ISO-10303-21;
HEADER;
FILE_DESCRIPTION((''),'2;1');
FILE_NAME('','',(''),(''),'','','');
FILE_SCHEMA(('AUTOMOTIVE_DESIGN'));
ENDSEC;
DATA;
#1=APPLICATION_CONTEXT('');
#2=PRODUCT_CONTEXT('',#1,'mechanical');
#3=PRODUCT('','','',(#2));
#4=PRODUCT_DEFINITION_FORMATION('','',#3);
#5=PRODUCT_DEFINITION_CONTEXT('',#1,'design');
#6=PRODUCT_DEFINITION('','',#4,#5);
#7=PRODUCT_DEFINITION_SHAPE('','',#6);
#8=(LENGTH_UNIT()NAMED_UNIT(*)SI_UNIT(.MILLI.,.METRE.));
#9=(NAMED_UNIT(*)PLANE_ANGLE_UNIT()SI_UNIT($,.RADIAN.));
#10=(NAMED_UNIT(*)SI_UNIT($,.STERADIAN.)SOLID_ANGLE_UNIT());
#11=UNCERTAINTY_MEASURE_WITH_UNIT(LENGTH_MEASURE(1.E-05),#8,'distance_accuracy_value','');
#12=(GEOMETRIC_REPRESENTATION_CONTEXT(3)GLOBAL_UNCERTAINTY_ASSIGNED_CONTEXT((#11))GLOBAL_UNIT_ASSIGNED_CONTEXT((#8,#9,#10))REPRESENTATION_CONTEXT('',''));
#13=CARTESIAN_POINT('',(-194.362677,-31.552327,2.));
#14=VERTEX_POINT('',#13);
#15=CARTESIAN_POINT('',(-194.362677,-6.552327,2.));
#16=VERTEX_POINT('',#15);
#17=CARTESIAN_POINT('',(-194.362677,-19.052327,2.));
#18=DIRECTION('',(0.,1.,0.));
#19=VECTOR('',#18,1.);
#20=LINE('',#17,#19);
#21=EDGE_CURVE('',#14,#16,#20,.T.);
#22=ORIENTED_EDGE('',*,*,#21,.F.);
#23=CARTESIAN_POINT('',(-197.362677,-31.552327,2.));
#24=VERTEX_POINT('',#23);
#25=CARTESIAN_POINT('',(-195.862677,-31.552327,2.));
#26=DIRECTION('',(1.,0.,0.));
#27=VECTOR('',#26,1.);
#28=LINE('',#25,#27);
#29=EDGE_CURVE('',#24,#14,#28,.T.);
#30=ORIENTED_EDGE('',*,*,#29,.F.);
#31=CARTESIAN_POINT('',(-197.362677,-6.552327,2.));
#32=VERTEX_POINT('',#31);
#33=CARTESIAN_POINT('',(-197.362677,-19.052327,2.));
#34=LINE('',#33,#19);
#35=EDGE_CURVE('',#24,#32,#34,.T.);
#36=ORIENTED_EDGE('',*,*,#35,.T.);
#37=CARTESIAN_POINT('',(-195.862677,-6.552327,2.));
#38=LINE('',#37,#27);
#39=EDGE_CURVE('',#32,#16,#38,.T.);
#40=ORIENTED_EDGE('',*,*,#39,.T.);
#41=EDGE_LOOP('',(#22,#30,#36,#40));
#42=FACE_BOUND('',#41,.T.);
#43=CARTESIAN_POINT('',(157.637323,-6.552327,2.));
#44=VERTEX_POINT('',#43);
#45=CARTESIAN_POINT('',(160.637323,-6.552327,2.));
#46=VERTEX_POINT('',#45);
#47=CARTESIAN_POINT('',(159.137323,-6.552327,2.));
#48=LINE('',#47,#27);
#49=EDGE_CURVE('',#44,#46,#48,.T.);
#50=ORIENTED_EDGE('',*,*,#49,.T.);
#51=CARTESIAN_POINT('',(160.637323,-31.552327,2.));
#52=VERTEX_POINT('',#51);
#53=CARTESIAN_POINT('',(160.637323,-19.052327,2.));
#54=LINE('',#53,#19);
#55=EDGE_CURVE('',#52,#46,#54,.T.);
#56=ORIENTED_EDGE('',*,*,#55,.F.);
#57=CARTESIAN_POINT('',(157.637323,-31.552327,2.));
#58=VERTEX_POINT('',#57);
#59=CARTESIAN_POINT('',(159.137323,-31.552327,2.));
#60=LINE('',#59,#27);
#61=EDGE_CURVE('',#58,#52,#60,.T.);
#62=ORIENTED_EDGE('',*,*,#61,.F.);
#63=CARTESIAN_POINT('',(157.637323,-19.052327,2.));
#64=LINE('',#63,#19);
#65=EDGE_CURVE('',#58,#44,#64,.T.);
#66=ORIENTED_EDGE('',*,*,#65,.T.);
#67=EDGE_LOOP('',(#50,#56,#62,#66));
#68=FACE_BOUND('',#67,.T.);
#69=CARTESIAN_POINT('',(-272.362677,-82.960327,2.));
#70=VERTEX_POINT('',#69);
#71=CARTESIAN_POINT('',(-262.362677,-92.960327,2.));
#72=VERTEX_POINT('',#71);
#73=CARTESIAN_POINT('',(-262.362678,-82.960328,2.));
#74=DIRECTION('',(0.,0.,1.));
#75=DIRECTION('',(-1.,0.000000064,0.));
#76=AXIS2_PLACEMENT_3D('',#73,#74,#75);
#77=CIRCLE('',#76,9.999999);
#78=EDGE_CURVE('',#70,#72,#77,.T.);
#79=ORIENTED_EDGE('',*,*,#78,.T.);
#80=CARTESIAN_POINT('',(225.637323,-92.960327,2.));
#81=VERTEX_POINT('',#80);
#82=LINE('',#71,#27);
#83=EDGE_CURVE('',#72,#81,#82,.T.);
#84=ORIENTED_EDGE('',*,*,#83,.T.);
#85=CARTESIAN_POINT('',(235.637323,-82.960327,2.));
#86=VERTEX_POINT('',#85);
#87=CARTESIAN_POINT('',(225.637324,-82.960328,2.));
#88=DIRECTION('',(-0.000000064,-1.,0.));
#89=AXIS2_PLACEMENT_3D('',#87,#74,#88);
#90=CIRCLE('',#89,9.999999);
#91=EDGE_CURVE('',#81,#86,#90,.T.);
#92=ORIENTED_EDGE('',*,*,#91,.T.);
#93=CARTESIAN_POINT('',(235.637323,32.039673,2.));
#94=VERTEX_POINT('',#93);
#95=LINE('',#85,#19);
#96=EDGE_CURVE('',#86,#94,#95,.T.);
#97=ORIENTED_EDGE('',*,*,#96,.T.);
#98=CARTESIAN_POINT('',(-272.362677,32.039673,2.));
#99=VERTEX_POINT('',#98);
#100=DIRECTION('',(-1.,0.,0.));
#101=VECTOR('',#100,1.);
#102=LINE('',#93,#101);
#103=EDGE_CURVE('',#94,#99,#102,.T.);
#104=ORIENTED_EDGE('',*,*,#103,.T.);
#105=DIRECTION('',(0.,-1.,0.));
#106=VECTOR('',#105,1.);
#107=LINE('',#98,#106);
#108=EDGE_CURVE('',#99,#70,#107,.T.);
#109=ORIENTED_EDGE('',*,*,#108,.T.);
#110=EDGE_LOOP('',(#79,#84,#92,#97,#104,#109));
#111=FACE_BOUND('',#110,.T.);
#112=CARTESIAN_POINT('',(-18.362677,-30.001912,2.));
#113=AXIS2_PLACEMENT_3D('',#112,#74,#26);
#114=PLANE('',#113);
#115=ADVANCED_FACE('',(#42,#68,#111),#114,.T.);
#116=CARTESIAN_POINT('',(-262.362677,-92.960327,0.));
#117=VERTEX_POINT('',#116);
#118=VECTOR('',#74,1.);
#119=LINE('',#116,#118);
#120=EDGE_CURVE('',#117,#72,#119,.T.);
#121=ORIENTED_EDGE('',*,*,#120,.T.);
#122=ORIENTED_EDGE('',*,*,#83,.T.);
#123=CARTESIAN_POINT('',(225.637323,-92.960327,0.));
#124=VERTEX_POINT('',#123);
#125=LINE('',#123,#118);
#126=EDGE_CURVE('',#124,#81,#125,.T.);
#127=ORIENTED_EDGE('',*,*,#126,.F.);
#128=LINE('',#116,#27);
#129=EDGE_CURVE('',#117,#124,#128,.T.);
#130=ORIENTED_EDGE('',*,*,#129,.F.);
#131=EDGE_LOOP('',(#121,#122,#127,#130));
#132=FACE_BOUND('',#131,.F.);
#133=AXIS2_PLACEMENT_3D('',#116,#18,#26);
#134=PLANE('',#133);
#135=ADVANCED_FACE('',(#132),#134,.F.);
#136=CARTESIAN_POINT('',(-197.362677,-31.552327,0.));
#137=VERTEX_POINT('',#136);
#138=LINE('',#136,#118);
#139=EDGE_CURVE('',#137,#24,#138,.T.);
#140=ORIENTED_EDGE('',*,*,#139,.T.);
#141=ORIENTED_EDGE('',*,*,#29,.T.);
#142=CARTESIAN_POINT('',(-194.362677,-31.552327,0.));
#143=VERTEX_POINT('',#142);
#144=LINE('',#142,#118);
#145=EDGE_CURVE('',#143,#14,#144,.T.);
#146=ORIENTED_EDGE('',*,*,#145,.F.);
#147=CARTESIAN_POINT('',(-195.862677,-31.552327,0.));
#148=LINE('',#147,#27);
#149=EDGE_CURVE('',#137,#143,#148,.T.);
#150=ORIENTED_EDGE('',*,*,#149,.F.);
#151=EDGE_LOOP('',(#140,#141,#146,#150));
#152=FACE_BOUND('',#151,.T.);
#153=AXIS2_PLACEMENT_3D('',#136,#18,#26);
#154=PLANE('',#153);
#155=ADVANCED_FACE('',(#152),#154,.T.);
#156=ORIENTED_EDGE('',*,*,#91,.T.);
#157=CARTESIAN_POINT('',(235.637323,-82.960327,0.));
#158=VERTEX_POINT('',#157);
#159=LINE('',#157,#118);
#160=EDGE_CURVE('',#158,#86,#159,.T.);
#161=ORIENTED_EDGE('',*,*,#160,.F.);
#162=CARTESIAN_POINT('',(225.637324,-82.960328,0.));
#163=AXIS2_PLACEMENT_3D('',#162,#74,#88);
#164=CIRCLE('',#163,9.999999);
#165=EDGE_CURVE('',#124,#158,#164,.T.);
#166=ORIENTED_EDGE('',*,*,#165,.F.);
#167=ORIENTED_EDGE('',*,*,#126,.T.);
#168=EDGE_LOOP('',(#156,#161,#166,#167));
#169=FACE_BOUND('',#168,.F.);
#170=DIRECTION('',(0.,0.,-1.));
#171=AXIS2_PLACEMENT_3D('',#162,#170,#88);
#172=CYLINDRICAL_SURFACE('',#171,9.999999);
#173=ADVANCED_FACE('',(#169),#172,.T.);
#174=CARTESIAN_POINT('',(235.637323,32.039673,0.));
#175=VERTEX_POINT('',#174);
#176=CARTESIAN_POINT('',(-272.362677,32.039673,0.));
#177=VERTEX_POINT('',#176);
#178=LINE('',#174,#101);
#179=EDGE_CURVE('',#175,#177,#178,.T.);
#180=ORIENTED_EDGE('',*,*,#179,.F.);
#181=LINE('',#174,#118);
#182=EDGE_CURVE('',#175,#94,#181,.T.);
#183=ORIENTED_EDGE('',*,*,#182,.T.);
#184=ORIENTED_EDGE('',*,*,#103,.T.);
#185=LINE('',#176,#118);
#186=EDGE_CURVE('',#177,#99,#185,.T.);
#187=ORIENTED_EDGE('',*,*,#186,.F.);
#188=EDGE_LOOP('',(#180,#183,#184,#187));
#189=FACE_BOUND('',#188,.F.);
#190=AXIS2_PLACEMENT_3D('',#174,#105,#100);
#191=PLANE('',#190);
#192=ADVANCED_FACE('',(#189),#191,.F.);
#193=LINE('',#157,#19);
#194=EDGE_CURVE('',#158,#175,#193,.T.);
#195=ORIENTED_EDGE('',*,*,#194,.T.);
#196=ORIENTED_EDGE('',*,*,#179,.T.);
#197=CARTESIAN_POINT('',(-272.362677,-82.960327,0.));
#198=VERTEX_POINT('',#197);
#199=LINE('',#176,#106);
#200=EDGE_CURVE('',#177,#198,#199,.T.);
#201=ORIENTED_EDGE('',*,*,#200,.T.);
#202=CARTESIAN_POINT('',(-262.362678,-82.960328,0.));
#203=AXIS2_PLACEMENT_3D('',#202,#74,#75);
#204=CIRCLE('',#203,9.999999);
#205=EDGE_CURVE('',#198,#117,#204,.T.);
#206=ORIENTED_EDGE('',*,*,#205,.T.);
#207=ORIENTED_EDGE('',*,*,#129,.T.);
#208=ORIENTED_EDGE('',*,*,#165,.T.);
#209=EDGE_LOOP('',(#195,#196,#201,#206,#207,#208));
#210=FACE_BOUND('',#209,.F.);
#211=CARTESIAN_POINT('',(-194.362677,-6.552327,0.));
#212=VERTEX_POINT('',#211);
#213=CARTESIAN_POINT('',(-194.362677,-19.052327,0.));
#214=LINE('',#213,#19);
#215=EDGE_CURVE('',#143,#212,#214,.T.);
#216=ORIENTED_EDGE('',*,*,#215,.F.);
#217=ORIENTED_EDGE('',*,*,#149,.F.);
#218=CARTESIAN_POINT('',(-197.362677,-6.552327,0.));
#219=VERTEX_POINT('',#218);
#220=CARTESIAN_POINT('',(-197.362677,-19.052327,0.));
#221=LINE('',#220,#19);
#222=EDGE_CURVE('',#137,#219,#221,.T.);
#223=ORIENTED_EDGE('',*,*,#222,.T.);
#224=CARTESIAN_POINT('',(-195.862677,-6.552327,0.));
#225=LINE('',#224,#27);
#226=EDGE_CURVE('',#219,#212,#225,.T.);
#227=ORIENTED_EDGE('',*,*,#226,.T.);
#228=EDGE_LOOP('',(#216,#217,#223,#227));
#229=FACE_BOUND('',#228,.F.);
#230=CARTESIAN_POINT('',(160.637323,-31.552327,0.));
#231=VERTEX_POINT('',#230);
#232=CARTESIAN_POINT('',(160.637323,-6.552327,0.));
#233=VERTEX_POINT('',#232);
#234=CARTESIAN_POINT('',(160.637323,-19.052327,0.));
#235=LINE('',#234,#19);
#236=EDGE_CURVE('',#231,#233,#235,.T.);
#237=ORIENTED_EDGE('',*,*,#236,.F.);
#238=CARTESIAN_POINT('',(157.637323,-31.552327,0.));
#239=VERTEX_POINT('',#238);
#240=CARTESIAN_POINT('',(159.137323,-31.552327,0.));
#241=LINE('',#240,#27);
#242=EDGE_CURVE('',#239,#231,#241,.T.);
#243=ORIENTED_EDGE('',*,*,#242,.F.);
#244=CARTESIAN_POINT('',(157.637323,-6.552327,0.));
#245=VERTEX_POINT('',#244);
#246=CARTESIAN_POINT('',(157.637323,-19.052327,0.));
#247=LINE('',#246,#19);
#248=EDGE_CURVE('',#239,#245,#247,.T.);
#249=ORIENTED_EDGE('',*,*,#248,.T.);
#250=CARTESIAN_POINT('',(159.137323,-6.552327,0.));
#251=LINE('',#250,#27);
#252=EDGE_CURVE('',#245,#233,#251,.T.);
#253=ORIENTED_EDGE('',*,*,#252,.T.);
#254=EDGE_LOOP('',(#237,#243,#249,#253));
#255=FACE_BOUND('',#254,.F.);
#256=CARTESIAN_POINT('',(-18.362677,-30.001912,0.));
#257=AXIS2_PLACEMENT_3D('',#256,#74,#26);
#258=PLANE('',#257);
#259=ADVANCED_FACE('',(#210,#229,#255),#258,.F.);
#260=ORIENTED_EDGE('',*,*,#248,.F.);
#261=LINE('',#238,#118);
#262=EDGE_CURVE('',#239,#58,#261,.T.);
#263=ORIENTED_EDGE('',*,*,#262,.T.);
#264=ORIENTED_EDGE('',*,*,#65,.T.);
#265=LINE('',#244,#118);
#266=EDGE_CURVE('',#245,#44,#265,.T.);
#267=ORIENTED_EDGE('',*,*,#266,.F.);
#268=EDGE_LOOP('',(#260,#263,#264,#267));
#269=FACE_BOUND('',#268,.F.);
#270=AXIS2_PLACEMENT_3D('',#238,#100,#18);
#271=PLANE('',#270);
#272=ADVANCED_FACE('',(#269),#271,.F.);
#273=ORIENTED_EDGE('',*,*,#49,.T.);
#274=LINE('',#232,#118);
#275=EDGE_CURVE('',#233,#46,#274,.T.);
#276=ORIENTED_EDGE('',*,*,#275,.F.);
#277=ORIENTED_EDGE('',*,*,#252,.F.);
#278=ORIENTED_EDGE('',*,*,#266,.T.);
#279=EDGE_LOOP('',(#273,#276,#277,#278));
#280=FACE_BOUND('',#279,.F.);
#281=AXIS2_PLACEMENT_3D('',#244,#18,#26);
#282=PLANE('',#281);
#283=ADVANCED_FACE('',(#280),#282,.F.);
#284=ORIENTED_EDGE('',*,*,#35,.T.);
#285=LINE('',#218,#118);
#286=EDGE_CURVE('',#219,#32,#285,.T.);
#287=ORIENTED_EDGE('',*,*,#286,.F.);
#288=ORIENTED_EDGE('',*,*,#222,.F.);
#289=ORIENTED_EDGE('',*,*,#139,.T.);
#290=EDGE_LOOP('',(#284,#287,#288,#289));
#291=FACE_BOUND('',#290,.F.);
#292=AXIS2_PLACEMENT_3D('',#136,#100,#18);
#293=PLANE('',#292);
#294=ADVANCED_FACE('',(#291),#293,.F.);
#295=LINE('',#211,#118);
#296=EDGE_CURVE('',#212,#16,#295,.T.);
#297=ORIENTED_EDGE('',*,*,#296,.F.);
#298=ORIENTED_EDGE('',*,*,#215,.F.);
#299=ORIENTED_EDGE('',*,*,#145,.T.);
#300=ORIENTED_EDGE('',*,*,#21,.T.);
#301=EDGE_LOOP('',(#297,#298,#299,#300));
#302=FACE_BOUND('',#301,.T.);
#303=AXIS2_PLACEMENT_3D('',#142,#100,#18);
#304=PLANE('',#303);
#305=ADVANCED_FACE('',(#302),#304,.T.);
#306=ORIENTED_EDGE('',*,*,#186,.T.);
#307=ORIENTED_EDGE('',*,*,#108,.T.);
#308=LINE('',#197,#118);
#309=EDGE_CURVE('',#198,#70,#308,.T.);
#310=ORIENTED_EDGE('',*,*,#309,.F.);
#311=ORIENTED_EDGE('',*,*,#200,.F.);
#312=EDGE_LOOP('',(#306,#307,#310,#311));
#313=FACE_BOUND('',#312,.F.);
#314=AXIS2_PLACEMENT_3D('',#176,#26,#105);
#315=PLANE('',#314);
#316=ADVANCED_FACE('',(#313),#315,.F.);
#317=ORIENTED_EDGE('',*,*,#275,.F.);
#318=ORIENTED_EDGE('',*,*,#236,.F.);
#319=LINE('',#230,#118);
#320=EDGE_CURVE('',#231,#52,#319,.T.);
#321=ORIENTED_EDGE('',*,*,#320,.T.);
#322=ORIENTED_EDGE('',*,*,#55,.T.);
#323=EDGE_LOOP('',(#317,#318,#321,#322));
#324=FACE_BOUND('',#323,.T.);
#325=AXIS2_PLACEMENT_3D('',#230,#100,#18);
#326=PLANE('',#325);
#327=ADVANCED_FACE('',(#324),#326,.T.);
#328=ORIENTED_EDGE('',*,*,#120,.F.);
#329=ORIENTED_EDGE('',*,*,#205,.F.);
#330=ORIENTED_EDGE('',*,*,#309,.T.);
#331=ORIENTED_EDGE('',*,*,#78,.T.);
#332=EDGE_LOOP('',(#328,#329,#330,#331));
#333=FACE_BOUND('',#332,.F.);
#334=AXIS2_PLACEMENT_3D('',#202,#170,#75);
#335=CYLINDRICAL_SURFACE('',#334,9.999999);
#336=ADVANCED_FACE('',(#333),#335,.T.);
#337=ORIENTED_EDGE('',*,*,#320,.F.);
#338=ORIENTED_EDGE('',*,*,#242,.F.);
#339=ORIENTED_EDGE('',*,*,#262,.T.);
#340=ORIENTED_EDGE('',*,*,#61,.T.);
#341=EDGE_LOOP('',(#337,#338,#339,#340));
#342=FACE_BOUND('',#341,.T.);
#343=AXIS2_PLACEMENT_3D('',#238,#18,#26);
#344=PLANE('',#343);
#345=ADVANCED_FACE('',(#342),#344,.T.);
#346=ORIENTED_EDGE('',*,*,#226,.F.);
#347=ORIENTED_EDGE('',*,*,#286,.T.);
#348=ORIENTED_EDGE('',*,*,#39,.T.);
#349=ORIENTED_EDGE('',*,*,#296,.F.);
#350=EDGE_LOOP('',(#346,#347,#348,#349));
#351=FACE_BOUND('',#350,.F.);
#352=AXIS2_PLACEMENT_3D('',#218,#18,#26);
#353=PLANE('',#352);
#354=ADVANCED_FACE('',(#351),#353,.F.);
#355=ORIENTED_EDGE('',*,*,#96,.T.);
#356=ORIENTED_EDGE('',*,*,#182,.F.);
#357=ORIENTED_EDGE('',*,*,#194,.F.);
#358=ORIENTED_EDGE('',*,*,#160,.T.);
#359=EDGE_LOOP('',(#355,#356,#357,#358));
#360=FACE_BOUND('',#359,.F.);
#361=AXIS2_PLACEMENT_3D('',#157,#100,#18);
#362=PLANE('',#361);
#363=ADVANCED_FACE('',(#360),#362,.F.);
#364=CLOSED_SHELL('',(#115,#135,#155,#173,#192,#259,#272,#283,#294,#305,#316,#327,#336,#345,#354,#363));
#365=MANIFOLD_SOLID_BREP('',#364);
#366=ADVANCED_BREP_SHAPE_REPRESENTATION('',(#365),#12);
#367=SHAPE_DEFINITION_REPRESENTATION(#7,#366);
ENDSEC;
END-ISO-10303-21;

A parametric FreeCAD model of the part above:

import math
import FreeCAD as App
import Part
import Sketcher


def add_polygon(sketch, points):
    """Adds a closed chain of lines whose ends are joined by coincident constraints."""
    first, n = sketch.GeometryCount, len(points)
    for a, b in zip(points, points[1:] + points[:1]):
        sketch.addGeometry(Part.LineSegment(App.Vector(*a, 0), App.Vector(*b, 0)), False)
    for i in range(n):
        sketch.addConstraint(Sketcher.Constraint("Coincident", first + i, 2, first + (i + 1) % n, 1))

doc = App.newDocument("Part")
params = doc.addObject("Spreadsheet::Sheet", "Params")
for row, (alias, value) in enumerate([
    ("sketch1_radius", "9.999999 mm"),
    ("sketch1_width", "508 mm"),
    ("sketch1_width2", "3 mm"),
    ("sketch1_height", "115 mm"),
    ("sketch1_height2", "25 mm"),
    ("pad1_length", "2 mm"),
], start=1):
    params.set(f"A{row}", alias)
    params.set(f"B{row}", "=" + value)
    params.setAlias(f"B{row}", alias)

body = doc.addObject("PartDesign::Body", "Body")

# Sketch on XY plane
sketch1 = body.newObject("Sketcher::SketchObject", "Sketch")
sketch1.AttachmentSupport = (doc.getObject("XY_Plane"), [""])
sketch1.MapMode = "FlatFace"
sketch1.addGeometry(Part.LineSegment(App.Vector(235.6, 32, 0), App.Vector(-272.4, 32, 0)), False)  # 0
sketch1.addGeometry(Part.LineSegment(App.Vector(-272.4, 32, 0), App.Vector(-272.4, -83, 0)), False)  # 1
sketch1.addGeometry(Part.ArcOfCircle(Part.Circle(App.Vector(-262.4, -83, 0), App.Vector(0, 0, 1), 10), math.radians(180), math.radians(270)), False)  # 2
sketch1.addGeometry(Part.LineSegment(App.Vector(-262.4, -93, 0), App.Vector(225.6, -93, 0)), False)  # 3
sketch1.addGeometry(Part.ArcOfCircle(Part.Circle(App.Vector(225.6, -83, 0), App.Vector(0, 0, 1), 10), math.radians(-90), math.radians(0)), False)  # 4
sketch1.addGeometry(Part.LineSegment(App.Vector(235.6, -83, 0), App.Vector(235.6, 32, 0)), False)  # 5
add_polygon(sketch1, [(-194.4, -31.6), (-197.4, -31.6), (-197.4, -6.6), (-194.4, -6.6)])  # lines 6-9
add_polygon(sketch1, [(160.6, -31.6), (157.6, -31.6), (157.6, -6.6), (160.6, -6.6)])  # lines 10-13
sketch1.addConstraint([
    Sketcher.Constraint("Coincident", 0, 2, 1, 1),
    Sketcher.Constraint("Tangent", 1, 2, 2, 1),
    Sketcher.Constraint("Tangent", 2, 2, 3, 1),
    Sketcher.Constraint("Tangent", 3, 2, 4, 1),
    Sketcher.Constraint("Tangent", 4, 2, 5, 1),
    Sketcher.Constraint("Coincident", 5, 2, 0, 1),
    Sketcher.Constraint("Horizontal", 0),
    Sketcher.Constraint("Vertical", 1),
    Sketcher.Constraint("Horizontal", 3),
    Sketcher.Constraint("Vertical", 5),
    Sketcher.Constraint("Horizontal", 6),
    Sketcher.Constraint("Vertical", 7),
    Sketcher.Constraint("Horizontal", 8),
    Sketcher.Constraint("Vertical", 9),
    Sketcher.Constraint("Horizontal", 10),
    Sketcher.Constraint("Vertical", 11),
    Sketcher.Constraint("Horizontal", 12),
    Sketcher.Constraint("Vertical", 13),
    Sketcher.Constraint("Equal", 2, 4),
    Sketcher.Constraint("Horizontal", 9, 2, 10, 2),
    Sketcher.Constraint("Horizontal", 8, 2, 11, 2),
    Sketcher.Constraint("Equal", 8, 10),
    Sketcher.Constraint("Radius", 2, 9.999999),
    Sketcher.Constraint("DistanceX", 0, 2, 0, 1, 508.0),
    Sketcher.Constraint("DistanceX", 6, 2, 6, 1, 3.0),
    Sketcher.Constraint("DistanceY", 1, 2, 1, 1, 115.0),
    Sketcher.Constraint("DistanceY", 7, 1, 7, 2, 25.0),
    Sketcher.Constraint("DistanceX", 2, 3, 6, 2, 65.000001),
    Sketcher.Constraint("DistanceX", 10, 2, 4, 3, 68.000001),
    Sketcher.Constraint("DistanceY", 2, 3, 6, 2, 51.408001),
    Sketcher.Constraint("DistanceX", 2, 3, -1, 1, 262.362678),
    Sketcher.Constraint("DistanceY", 2, 3, -1, 1, 82.960328),
])
sketch1.setExpression("Constraints[30]", "Params.sketch1_radius")
sketch1.setExpression("Constraints[31]", "Params.sketch1_width")
sketch1.setExpression("Constraints[32]", "Params.sketch1_width2")
sketch1.setExpression("Constraints[33]", "Params.sketch1_height")
sketch1.setExpression("Constraints[34]", "Params.sketch1_height2")
pad1 = body.newObject("PartDesign::Pad", "Pad")
pad1.Profile = sketch1
pad1.setExpression("Length", "Params.pad1_length")

doc.recompute()
